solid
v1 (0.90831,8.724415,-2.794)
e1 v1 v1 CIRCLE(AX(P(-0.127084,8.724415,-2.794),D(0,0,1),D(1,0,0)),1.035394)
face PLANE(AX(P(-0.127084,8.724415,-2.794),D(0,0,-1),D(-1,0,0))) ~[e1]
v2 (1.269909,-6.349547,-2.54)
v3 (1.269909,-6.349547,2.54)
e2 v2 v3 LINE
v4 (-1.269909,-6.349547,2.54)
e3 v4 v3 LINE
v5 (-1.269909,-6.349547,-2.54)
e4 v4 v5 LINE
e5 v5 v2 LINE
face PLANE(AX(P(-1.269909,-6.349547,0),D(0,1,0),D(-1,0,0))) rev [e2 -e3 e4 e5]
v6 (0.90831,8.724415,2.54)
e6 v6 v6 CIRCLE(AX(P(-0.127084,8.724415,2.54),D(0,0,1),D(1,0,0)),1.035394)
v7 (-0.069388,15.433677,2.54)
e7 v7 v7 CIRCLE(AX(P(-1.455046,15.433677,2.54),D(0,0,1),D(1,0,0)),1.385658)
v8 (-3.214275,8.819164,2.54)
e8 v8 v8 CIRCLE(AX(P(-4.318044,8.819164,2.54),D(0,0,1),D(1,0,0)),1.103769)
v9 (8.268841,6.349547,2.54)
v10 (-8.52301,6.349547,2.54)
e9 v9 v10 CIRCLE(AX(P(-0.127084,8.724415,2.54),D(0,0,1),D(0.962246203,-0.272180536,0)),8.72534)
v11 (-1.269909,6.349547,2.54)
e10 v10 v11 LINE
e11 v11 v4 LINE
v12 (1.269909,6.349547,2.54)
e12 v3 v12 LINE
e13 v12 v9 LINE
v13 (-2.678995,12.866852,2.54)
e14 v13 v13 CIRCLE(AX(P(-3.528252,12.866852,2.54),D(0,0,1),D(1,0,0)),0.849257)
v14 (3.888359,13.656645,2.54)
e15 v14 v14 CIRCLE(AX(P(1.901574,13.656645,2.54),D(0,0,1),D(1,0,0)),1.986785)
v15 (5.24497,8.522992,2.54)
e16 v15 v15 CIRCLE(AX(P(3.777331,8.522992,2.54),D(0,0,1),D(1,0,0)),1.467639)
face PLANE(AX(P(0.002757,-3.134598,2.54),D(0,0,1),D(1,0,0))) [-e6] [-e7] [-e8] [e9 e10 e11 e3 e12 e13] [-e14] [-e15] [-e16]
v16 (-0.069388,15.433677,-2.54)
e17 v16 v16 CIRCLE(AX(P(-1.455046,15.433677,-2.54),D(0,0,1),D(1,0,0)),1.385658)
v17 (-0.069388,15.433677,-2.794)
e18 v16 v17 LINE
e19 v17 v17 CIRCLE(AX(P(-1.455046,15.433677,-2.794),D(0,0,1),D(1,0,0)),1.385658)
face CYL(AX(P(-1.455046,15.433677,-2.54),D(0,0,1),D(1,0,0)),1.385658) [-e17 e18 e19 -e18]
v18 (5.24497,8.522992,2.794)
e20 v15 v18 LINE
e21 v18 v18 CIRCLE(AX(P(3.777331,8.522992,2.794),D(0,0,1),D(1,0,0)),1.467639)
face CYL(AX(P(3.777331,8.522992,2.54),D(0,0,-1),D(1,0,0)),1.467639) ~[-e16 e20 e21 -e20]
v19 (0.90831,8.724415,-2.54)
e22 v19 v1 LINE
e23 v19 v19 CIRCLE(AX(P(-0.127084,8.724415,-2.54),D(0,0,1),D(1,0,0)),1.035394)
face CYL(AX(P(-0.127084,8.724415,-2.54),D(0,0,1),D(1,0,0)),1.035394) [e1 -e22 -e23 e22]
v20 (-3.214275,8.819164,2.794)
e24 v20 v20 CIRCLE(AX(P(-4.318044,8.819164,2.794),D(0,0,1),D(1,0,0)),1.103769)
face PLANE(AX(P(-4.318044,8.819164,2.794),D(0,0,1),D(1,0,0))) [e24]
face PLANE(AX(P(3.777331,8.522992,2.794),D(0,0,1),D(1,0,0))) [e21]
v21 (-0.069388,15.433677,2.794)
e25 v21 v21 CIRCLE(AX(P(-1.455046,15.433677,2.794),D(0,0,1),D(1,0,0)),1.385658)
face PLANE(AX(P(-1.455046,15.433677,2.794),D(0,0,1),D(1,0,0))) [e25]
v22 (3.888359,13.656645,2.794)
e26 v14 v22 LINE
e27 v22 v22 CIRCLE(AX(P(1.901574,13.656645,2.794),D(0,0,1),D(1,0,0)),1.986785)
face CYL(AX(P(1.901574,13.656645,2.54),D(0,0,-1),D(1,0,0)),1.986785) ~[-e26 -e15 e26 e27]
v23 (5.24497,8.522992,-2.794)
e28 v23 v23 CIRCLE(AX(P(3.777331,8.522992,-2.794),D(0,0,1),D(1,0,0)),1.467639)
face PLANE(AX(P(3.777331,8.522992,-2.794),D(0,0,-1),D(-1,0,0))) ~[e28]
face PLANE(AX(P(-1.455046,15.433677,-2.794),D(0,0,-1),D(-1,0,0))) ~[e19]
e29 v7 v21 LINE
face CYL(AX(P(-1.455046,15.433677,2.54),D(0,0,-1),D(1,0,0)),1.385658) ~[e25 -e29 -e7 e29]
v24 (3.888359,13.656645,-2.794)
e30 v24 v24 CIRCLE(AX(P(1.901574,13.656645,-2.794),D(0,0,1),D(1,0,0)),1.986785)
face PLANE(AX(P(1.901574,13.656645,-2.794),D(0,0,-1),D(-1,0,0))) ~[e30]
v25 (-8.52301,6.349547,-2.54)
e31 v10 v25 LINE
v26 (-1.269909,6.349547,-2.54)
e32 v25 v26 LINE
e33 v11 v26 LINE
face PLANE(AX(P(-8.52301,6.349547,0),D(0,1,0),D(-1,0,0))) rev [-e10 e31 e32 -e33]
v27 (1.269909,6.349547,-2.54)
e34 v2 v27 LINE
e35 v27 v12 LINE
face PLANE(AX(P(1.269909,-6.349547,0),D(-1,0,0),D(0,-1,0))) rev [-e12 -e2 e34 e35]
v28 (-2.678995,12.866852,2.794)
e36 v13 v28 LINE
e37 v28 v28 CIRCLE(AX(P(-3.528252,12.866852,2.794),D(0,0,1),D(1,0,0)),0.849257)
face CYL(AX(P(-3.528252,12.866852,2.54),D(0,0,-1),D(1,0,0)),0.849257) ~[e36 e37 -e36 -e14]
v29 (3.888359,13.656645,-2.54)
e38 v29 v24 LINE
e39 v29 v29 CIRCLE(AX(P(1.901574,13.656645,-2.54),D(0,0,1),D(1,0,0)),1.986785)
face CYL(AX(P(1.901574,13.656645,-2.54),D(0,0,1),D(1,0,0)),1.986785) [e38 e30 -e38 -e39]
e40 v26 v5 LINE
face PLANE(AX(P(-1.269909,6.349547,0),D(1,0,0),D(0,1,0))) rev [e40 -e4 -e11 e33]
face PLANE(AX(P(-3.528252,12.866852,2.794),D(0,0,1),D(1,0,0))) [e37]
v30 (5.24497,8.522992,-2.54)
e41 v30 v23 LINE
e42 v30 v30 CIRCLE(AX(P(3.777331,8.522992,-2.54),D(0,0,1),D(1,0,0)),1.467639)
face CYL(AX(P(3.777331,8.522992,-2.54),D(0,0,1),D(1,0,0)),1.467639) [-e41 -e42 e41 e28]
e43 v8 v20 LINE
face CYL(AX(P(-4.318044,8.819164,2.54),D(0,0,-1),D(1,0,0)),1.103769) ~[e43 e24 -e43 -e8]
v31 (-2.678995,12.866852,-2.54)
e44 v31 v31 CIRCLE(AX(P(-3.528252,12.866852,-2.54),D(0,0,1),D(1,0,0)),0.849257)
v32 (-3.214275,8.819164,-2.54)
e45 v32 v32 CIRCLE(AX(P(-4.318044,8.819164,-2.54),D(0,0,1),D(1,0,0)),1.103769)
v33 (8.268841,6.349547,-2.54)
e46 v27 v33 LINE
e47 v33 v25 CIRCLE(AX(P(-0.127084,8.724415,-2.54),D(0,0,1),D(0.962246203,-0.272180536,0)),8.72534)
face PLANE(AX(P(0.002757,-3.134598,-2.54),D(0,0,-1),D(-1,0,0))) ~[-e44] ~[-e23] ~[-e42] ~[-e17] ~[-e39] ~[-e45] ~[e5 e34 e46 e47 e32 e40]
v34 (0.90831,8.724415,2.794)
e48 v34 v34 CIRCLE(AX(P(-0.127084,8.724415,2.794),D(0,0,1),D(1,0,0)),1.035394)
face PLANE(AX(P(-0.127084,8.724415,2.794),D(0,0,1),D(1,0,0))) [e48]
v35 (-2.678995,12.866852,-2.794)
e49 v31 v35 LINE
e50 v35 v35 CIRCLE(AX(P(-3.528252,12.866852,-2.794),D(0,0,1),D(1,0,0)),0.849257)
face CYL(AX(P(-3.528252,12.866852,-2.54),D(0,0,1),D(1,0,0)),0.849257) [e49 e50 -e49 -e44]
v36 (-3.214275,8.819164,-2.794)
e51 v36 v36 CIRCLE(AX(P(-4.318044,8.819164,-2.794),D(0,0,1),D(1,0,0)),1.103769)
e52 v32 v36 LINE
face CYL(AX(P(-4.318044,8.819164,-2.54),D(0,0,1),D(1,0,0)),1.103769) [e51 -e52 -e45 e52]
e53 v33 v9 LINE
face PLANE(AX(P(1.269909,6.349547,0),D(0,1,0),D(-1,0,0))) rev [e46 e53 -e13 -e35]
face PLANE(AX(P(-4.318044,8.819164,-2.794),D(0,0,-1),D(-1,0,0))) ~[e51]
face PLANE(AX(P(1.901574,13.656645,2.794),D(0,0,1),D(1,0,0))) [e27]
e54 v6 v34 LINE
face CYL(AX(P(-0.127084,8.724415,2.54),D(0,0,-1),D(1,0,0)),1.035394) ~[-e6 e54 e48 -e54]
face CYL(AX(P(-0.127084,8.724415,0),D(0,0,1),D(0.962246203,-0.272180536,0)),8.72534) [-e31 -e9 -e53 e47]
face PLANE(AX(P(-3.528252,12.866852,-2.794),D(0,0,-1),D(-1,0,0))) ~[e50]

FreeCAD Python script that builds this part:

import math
import FreeCAD as App
import Part
import Sketcher
from FreeCAD import Vector
Q = App.Units.Quantity

doc = App.newDocument("Part")
body = doc.addObject("PartDesign::Body", "Body")

# Sketch on XY plane
sketch1 = body.newObject("Sketcher::SketchObject", "Sketch")
sketch1.AttachmentSupport = (doc.getObject("XY_Plane"), [""])
sketch1.MapMode = "FlatFace"
sketch1.addGeometry(Part.LineSegment(Vector(-1.3, -6.3, 0), Vector(1.3, -6.3, 0)), False)
sketch1.addGeometry(Part.LineSegment(Vector(1.3, -6.3, 0), Vector(1.3, 6.3, 0)), False)
sketch1.addGeometry(Part.LineSegment(Vector(1.3, 6.3, 0), Vector(8.3, 6.3, 0)), False)
sketch1.addGeometry(Part.ArcOfCircle(Part.Circle(Vector(-0.1, 8.7, 0), Vector(0, 0, 1), 8.7), math.radians(-16), math.radians(196)), False)
sketch1.addGeometry(Part.LineSegment(Vector(-8.5, 6.3, 0), Vector(-1.3, 6.3, 0)), False)
sketch1.addGeometry(Part.LineSegment(Vector(-1.3, 6.3, 0), Vector(-1.3, -6.3, 0)), False)
sketch1.addConstraint(Sketcher.Constraint("Coincident", 0, 2, 1, 1))
sketch1.addConstraint(Sketcher.Constraint("Coincident", 1, 2, 2, 1))
sketch1.addConstraint(Sketcher.Constraint("Coincident", 2, 2, 3, 1))
sketch1.addConstraint(Sketcher.Constraint("Coincident", 3, 2, 4, 1))
sketch1.addConstraint(Sketcher.Constraint("Coincident", 4, 2, 5, 1))
sketch1.addConstraint(Sketcher.Constraint("Coincident", 5, 2, 0, 1))
sketch1.addConstraint(Sketcher.Constraint("Horizontal", 0))
sketch1.addConstraint(Sketcher.Constraint("Vertical", 1))
sketch1.addConstraint(Sketcher.Constraint("Horizontal", 2))
sketch1.addConstraint(Sketcher.Constraint("Horizontal", 4))
sketch1.addConstraint(Sketcher.Constraint("Vertical", 5))
sketch1.addConstraint(Sketcher.Constraint("Symmetric", 0, 2, 4, 2, -1, 1))
sketch1.addConstraint(Sketcher.Constraint("Horizontal", 2, 2, 3, 2))
sketch1.addConstraint(Sketcher.Constraint("Radius", 3, 8.72534))
sketch1.addConstraint(Sketcher.Constraint("DistanceX", 4, 1, 4, 2, 7.253101))
sketch1.addConstraint(Sketcher.Constraint("DistanceX", 0, 1, 0, 2, 2.539818))
sketch1.addConstraint(Sketcher.Constraint("DistanceX", 2, 1, 2, 2, 6.998932))
sketch1.addConstraint(Sketcher.Constraint("DistanceY", 1, 1, 1, 2, 12.699094))
pad1 = body.newObject("PartDesign::Pad", "Pad")
pad1.Profile = sketch1
pad1.Length = Q("0.1 in")

# Sketch on XY plane
sketch2 = body.newObject("Sketcher::SketchObject", "Sketch001")
sketch2.AttachmentSupport = (doc.getObject("XY_Plane"), [""])
sketch2.MapMode = "FlatFace"
sketch2.AttachmentOffset = App.Placement(Vector(0, 0, 0.1 * 25.4), App.Rotation())
sketch2.addGeometry(Part.Circle(Vector(-3.5, 12.9, 0), Vector(0, 0, 1), 0.8), False)
sketch2.addGeometry(Part.Circle(Vector(3.8, 8.5, 0), Vector(0, 0, 1), 1.5), False)
sketch2.addGeometry(Part.Circle(Vector(1.9, 13.7, 0), Vector(0, 0, 1), 2), False)
sketch2.addGeometry(Part.Circle(Vector(-4.3, 8.8, 0), Vector(0, 0, 1), 1.1), False)
sketch2.addGeometry(Part.Circle(Vector(-0.1, 8.7, 0), Vector(0, 0, 1), 1), False)
sketch2.addGeometry(Part.Circle(Vector(-1.5, 15.4, 0), Vector(0, 0, 1), 1.4), False)
sketch2.addConstraint(Sketcher.Constraint("Diameter", 2, 3.97357))
sketch2.addConstraint(Sketcher.Constraint("Diameter", 3, 2.207538))
sketch2.addConstraint(Sketcher.Constraint("Diameter", 0, 1.698514))
sketch2.addConstraint(Sketcher.Constraint("Diameter", 1, 2.935278))
sketch2.addConstraint(Sketcher.Constraint("Diameter", 4, 2.070788))
sketch2.addConstraint(Sketcher.Constraint("Diameter", 5, 2.771316))
sketch2.addConstraint(Sketcher.Constraint("DistanceX", 3, 3, 5, 3, 2.862998))
sketch2.addConstraint(Sketcher.Constraint("DistanceX", -1, 1, 1, 3, 3.777331))
sketch2.addConstraint(Sketcher.Constraint("DistanceY", 1, 3, 0, 3, 4.34386))
sketch2.addConstraint(Sketcher.Constraint("DistanceX", 3, 3, 2, 3, 6.219618))
sketch2.addConstraint(Sketcher.Constraint("DistanceY", 3, 3, 2, 3, 4.837481))
sketch2.addConstraint(Sketcher.Constraint("DistanceX", 3, 3, 4, 3, 4.19096))
sketch2.addConstraint(Sketcher.Constraint("DistanceY", 4, 3, 3, 3, 0.094749))
sketch2.addConstraint(Sketcher.Constraint("DistanceX", 0, 3, 4, 3, 3.401168))
sketch2.addConstraint(Sketcher.Constraint("DistanceY", 4, 3, 5, 3, 6.709262))
sketch2.addConstraint(Sketcher.Constraint("DistanceX", 0, 3, -1, 1, 3.528252))
sketch2.addConstraint(Sketcher.Constraint("DistanceY", -1, 1, 0, 3, 12.866852))
sketch2.addConstraint(Sketcher.Constraint("DistanceY", -1, 1, 2, 3, 13.656645))
pad2 = body.newObject("PartDesign::Pad", "Pad001")
pad2.Profile = sketch2
pad2.Length = Q("0.01 in")
body2 = doc.addObject("PartDesign::Body", "Body001")
doc.recompute()

body2.BaseFeature = body
doc.recompute()

mirroring = doc.addObject("Part::Mirroring", "Mirroring")
mirroring.Source = body
mirroring.Base = Vector(0, 0, 0)
mirroring.Normal = Vector(0, 0, 1)
body3 = doc.addObject("PartDesign::Body", "Body002")
body3.BaseFeature = mirroring
boolean = body2.newObject("PartDesign::Boolean", "Boolean")
boolean.Type = "Fuse"
boolean.addObjects([body3])
doc.recompute()
mirroring.Visibility = False

doc.recompute()
